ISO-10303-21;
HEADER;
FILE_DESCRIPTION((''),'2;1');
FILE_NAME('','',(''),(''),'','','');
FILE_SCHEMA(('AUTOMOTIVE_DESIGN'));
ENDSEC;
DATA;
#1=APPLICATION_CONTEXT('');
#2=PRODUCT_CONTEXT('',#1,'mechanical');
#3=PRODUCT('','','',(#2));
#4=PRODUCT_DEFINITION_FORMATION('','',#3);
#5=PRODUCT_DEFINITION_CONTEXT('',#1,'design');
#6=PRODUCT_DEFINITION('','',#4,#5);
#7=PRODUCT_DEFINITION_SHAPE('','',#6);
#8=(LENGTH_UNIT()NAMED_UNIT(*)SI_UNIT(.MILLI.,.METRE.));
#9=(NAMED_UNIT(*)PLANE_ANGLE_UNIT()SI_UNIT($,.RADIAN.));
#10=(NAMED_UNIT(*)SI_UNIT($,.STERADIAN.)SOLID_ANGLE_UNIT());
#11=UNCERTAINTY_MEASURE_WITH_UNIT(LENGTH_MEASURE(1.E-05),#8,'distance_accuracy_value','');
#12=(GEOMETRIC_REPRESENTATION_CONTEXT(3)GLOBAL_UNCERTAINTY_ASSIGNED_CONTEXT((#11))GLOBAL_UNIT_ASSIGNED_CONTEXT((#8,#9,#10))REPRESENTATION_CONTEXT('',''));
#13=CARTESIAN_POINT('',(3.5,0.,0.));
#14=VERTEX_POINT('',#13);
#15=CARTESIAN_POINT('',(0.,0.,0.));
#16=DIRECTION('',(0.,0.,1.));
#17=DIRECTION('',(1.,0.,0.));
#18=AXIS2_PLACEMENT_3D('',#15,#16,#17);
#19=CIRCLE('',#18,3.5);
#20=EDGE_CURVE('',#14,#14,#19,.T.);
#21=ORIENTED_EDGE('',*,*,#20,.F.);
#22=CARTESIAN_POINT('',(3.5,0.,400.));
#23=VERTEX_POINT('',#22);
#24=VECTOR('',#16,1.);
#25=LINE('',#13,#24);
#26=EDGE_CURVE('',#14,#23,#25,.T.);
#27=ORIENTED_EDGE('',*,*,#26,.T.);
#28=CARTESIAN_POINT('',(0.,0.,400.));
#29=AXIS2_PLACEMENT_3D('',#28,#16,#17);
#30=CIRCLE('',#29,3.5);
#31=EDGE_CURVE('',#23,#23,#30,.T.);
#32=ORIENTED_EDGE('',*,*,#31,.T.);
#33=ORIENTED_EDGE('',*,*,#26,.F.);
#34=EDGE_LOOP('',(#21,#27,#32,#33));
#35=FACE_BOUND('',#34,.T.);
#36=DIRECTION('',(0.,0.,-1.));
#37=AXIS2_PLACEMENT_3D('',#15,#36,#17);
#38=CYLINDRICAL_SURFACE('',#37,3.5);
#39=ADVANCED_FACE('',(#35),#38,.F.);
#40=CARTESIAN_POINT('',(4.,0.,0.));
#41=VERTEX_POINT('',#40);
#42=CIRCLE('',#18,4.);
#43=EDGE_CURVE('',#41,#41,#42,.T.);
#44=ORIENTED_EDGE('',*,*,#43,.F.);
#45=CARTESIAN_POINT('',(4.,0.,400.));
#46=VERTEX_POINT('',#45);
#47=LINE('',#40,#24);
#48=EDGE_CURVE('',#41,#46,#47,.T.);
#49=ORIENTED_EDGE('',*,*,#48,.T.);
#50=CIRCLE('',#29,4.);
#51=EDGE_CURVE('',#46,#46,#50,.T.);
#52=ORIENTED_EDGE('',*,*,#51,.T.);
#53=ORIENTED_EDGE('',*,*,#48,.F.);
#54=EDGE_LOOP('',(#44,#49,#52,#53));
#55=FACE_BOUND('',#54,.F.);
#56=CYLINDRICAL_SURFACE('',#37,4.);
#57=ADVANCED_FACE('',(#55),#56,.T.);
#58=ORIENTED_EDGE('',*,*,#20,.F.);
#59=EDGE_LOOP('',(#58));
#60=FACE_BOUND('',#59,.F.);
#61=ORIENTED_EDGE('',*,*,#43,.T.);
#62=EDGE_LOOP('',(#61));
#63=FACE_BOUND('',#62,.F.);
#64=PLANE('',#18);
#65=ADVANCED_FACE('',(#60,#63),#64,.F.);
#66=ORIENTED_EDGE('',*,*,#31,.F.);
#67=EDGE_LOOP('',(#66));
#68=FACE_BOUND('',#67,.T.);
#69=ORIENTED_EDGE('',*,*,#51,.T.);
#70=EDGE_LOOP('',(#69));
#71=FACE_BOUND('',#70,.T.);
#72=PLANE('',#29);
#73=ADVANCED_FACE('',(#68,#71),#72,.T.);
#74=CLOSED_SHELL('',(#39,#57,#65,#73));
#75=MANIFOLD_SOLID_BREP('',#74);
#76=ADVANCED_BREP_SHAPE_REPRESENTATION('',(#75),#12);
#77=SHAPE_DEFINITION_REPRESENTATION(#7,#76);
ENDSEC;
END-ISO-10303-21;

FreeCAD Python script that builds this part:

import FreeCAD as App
import Part
import Sketcher

V = App.Vector
Q = App.Units.Quantity

doc = App.newDocument("Part")
params = doc.addObject("Spreadsheet::Sheet", "Params")
for row, (alias, value) in enumerate([
    ("sketch1_diameter", "8 mm"),
    ("sketch1_diameter2", "7 mm"),
    ("pad1_length", "400 mm"),
], start=1):
    params.set(f"A{row}", alias)
    params.set(f"B{row}", "=" + value)
    params.setAlias(f"B{row}", alias)

body = doc.addObject("PartDesign::Body", "Body")

# Sketch on XY plane
sketch1 = doc.addObject("Sketcher::SketchObject", "Sketch")
body.addObject(sketch1)
sketch1.AttachmentSupport = (doc.XY_Plane, [""])
sketch1.MapMode = "FlatFace"
sketch1.addGeometry(Part.Circle(V(0, 0, 0), V(0, 0, 1), 4), False)
sketch1.addGeometry(Part.Circle(V(0, 0, 0), V(0, 0, 1), 3.5), False)
sketch1.addConstraint(Sketcher.Constraint("Coincident", 0, 3, -1, 1))
sketch1.addConstraint(Sketcher.Constraint("Coincident", 1, 3, -1, 1))
sketch1.addConstraint(Sketcher.Constraint("Diameter", 0, Q("8 mm")))
sketch1.addConstraint(Sketcher.Constraint("Diameter", 1, Q("7 mm")))
sketch1.setExpression("Constraints[2]", "Params.sketch1_diameter")
sketch1.setExpression("Constraints[3]", "Params.sketch1_diameter2")
pad1 = doc.addObject("PartDesign::Pad", "Pad")
body.addObject(pad1)
pad1.Profile = sketch1
pad1.setExpression("Length", "Params.pad1_length")

doc.recompute()
